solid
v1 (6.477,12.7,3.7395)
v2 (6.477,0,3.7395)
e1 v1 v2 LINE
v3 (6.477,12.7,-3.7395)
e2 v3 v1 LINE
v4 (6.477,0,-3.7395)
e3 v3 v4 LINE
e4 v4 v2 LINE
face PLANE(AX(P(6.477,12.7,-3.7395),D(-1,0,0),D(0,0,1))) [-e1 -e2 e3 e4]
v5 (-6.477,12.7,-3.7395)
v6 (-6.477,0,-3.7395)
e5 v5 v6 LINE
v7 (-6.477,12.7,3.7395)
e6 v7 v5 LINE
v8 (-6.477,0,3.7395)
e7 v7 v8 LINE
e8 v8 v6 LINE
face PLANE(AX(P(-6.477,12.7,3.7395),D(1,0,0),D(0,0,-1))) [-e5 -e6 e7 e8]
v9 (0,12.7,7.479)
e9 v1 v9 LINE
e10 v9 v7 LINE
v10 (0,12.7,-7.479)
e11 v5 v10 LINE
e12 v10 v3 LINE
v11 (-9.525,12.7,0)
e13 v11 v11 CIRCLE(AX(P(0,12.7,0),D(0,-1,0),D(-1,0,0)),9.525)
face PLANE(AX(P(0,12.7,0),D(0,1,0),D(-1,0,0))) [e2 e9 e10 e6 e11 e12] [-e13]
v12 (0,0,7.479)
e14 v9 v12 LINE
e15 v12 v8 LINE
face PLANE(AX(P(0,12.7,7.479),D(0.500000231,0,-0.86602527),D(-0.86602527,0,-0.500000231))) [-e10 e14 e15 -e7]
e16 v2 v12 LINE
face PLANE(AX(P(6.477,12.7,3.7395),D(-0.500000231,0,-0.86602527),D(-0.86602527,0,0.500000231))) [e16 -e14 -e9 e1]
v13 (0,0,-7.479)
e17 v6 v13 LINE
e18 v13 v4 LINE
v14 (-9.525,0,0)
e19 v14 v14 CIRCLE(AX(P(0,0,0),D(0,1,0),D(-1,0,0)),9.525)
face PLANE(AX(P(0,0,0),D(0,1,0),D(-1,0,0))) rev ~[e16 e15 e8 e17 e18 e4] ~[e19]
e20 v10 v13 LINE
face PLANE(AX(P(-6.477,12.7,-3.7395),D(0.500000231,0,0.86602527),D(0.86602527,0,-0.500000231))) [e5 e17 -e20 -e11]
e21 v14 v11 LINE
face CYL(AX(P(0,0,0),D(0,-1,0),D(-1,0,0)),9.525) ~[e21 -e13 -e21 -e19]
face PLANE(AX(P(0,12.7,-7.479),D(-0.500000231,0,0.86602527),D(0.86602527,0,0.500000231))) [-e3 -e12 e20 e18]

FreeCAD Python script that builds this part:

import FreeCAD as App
import Part
import Sketcher
Q = App.Units.Quantity


def add_polygon(sketch, points):
    """Adds a closed chain of lines whose ends are joined by coincident constraints."""
    first, n = sketch.GeometryCount, len(points)
    for a, b in zip(points, points[1:] + points[:1]):
        sketch.addGeometry(Part.LineSegment(App.Vector(*a, 0), App.Vector(*b, 0)), False)
    for i in range(n):
        sketch.addConstraint(Sketcher.Constraint("Coincident", first + i, 2, first + (i + 1) % n, 1))

doc = App.newDocument("Part")
body = doc.addObject("PartDesign::Body", "Body")

# Sketch on XZ plane
sketch1 = doc.addObject("Sketcher::SketchObject", "Sketch")
body.addObject(sketch1)
sketch1.AttachmentSupport = (doc.XZ_Plane, [""])
sketch1.MapMode = "FlatFace"
sketch1.addGeometry(Part.Circle(App.Vector(0, 0, 0), App.Vector(0, 0, 1), 10), False)
sketch1.addConstraint([
    Sketcher.Constraint("Coincident", 0, 3, -1, 1),
    Sketcher.Constraint("Diameter", 0, Q("0.75 in")),
])
pad1 = doc.addObject("PartDesign::Pad", "Pad")
body.addObject(pad1)
pad1.Profile = sketch1
pad1.Length = Q("0.5 in")
pad1.Reversed = True

# Sketch on XZ plane
sketch2 = doc.addObject("Sketcher::SketchObject", "Sketch001")
body.addObject(sketch2)
sketch2.AttachmentSupport = (doc.XZ_Plane, [""])
sketch2.MapMode = "FlatFace"
sketch2.AttachmentOffset = App.Placement(App.Vector(0, 0, -0.5 * 25.4), App.Rotation())
add_polygon(sketch2, [(6, -4), (0, -7), (-6, -4), (-6, 4), (0, 7), (6, 4)])  # lines 0-5
sketch2.addConstraint([
    Sketcher.Constraint("Vertical", 2),
    Sketcher.Constraint("Vertical", 5),
    Sketcher.Constraint("Symmetric", 0, 2, 3, 2, -1, 1),
    Sketcher.Constraint("Symmetric", 1, 2, 4, 2, -1, 1),
    Sketcher.Constraint("PointOnObject", 0, 2, -2),
    Sketcher.Constraint("Parallel", 0, 3),
    Sketcher.Constraint("Horizontal", 2, 2, 4, 2),
    Sketcher.Constraint("DistanceX", 2, 2, 4, 2, Q("0.51 in")),
    Sketcher.Constraint("Angle", 0, Q("-150 deg")),
    Sketcher.Constraint("DistanceY", 2, 1, 2, 2, Q("7.479 mm")),
])
pocket1 = doc.addObject("PartDesign::Pocket", "Pocket")
body.addObject(pocket1)
pocket1.Profile = sketch2
pocket1.Type = "ThroughAll"
pocket1.Reversed = True

doc.recompute()
